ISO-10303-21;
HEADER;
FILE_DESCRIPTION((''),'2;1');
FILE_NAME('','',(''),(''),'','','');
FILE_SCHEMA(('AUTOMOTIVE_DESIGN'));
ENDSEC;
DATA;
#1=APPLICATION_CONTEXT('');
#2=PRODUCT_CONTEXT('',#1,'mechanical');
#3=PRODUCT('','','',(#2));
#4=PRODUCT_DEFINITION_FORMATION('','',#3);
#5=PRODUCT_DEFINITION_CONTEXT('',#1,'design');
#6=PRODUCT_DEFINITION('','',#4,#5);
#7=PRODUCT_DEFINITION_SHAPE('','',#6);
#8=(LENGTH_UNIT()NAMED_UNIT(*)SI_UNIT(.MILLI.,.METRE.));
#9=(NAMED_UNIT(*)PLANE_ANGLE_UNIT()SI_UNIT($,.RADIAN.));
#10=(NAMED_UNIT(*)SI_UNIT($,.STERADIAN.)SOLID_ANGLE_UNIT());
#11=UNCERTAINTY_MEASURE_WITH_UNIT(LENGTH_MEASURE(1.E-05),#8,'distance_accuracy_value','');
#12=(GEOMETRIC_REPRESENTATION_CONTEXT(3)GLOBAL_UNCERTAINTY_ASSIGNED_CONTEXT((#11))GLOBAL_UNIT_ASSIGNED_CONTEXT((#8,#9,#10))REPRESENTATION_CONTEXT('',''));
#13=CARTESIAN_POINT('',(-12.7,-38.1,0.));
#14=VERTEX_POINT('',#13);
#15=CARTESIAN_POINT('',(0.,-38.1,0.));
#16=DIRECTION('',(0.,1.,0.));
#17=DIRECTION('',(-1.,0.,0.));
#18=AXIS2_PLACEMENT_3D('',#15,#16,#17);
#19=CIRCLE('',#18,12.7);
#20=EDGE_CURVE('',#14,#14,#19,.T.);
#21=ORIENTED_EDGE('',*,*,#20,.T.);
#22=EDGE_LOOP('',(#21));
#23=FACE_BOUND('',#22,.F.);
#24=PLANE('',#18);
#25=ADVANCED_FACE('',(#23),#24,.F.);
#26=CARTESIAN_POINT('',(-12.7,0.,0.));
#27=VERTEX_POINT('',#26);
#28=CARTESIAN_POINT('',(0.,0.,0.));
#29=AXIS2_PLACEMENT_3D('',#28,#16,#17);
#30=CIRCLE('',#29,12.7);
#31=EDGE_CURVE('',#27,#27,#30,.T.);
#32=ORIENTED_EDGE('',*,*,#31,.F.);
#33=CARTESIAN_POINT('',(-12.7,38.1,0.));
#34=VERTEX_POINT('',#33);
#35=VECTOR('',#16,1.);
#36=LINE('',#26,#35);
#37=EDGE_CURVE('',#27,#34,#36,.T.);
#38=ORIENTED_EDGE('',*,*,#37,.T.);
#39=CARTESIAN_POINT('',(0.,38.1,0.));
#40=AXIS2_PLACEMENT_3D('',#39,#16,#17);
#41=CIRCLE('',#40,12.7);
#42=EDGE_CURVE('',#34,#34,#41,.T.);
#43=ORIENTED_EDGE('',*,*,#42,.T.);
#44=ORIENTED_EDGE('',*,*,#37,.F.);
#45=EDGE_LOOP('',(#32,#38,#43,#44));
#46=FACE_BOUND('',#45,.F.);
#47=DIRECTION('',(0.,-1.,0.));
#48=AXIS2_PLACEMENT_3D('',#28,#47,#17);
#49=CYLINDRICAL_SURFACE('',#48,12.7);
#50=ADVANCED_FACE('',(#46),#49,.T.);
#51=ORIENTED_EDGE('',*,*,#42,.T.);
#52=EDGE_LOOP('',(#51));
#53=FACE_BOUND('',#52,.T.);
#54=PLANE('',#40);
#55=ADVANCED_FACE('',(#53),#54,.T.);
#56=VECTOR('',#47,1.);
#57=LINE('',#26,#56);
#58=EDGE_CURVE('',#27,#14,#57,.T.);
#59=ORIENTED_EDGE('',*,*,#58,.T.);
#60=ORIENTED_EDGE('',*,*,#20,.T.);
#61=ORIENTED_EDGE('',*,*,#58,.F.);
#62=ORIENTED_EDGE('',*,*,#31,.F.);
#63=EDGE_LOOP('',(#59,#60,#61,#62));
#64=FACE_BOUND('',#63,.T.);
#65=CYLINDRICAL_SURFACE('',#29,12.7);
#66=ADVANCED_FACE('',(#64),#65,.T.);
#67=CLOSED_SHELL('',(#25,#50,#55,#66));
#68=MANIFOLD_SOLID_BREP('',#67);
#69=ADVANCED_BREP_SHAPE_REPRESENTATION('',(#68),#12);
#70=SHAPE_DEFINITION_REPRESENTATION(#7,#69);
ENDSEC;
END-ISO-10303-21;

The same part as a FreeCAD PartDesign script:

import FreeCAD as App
import Part
import Sketcher

V = App.Vector
Q = App.Units.Quantity

doc = App.newDocument("Part")
body = doc.addObject("PartDesign::Body", "Body")

# Sketch on XZ plane
sketch1 = body.newObject("Sketcher::SketchObject", "Sketch")
sketch1.AttachmentSupport = (doc.getObject("XZ_Plane"), [""])
sketch1.MapMode = "FlatFace"
sketch1.addGeometry(Part.Circle(V(0, 0, 0), V(0, 0, 1), 12.7), False)
sketch1.addConstraint([
    Sketcher.Constraint("Coincident", 0, 3, -1, 1),
    Sketcher.Constraint("Diameter", 0, Q("1 in")),
])
pad1 = body.newObject("PartDesign::Pad", "Pad")
pad1.Profile = sketch1
pad1.Length = Q("3 in")
pad1.Midplane = True

doc.recompute()
